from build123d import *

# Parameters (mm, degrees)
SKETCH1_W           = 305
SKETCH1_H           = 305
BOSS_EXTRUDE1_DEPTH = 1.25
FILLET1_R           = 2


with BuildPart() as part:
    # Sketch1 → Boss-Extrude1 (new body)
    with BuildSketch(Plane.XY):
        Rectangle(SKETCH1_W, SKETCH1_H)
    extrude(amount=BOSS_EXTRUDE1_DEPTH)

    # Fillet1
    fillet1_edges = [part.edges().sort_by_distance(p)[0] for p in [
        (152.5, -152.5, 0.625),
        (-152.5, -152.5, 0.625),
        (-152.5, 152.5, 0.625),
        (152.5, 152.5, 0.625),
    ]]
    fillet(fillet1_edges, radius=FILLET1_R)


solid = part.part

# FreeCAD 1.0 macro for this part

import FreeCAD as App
import Part
import Sketcher


def edges_at(feature, points):
    """Names of the edges that pass closest to the given points."""
    edges = feature.Shape.Edges
    near = lambda p: min(range(len(edges)), key=lambda i: edges[i].distToShape(Part.Vertex(*p))[0])
    return sorted({f"Edge{near(p) + 1}" for p in points})

doc = App.newDocument("Part")
body = doc.addObject("PartDesign::Body", "Body")

# Sketch on XY plane
sketch1 = body.newObject("Sketcher::SketchObject", "Sketch")
sketch1.AttachmentSupport = (doc.getObject("XY_Plane"), [""])
sketch1.MapMode = "FlatFace"
sketch1.addGeometry(Part.LineSegment(App.Vector(-152, 152, 0), App.Vector(-152, -152, 0)), False)
sketch1.addGeometry(Part.LineSegment(App.Vector(-152, -152, 0), App.Vector(152, -152, 0)), False)
sketch1.addGeometry(Part.LineSegment(App.Vector(152, -152, 0), App.Vector(152, 152, 0)), False)
sketch1.addGeometry(Part.LineSegment(App.Vector(152, 152, 0), App.Vector(-152, 152, 0)), False)
sketch1.addConstraint(Sketcher.Constraint("Coincident", 0, 2, 1, 1))
sketch1.addConstraint(Sketcher.Constraint("Coincident", 1, 2, 2, 1))
sketch1.addConstraint(Sketcher.Constraint("Coincident", 2, 2, 3, 1))
sketch1.addConstraint(Sketcher.Constraint("Coincident", 3, 2, 0, 1))
sketch1.addConstraint(Sketcher.Constraint("Vertical", 0))
sketch1.addConstraint(Sketcher.Constraint("Horizontal", 1))
sketch1.addConstraint(Sketcher.Constraint("Vertical", 2))
sketch1.addConstraint(Sketcher.Constraint("Horizontal", 3))
sketch1.addConstraint(Sketcher.Constraint("Symmetric", 0, 2, 2, 2, -1, 1))
sketch1.addConstraint(Sketcher.Constraint("Equal", 3, 0))
sketch1.addConstraint(Sketcher.Constraint("DistanceX", 1, 1, 1, 2, 305.0))
pad1 = body.newObject("PartDesign::Pad", "Pad")
pad1.Profile = sketch1
pad1.Length = 1.25
doc.recompute()

fillet = body.newObject("PartDesign::Fillet", "Fillet")
fillet.Base = (pad1, edges_at(pad1, [
    (152.5, -152.5, 0.625),
    (-152.5, -152.5, 0.625),
    (-152.5, 152.5, 0.625),
    (152.5, 152.5, 0.625),
]))
fillet.Radius = 2

doc.recompute()
